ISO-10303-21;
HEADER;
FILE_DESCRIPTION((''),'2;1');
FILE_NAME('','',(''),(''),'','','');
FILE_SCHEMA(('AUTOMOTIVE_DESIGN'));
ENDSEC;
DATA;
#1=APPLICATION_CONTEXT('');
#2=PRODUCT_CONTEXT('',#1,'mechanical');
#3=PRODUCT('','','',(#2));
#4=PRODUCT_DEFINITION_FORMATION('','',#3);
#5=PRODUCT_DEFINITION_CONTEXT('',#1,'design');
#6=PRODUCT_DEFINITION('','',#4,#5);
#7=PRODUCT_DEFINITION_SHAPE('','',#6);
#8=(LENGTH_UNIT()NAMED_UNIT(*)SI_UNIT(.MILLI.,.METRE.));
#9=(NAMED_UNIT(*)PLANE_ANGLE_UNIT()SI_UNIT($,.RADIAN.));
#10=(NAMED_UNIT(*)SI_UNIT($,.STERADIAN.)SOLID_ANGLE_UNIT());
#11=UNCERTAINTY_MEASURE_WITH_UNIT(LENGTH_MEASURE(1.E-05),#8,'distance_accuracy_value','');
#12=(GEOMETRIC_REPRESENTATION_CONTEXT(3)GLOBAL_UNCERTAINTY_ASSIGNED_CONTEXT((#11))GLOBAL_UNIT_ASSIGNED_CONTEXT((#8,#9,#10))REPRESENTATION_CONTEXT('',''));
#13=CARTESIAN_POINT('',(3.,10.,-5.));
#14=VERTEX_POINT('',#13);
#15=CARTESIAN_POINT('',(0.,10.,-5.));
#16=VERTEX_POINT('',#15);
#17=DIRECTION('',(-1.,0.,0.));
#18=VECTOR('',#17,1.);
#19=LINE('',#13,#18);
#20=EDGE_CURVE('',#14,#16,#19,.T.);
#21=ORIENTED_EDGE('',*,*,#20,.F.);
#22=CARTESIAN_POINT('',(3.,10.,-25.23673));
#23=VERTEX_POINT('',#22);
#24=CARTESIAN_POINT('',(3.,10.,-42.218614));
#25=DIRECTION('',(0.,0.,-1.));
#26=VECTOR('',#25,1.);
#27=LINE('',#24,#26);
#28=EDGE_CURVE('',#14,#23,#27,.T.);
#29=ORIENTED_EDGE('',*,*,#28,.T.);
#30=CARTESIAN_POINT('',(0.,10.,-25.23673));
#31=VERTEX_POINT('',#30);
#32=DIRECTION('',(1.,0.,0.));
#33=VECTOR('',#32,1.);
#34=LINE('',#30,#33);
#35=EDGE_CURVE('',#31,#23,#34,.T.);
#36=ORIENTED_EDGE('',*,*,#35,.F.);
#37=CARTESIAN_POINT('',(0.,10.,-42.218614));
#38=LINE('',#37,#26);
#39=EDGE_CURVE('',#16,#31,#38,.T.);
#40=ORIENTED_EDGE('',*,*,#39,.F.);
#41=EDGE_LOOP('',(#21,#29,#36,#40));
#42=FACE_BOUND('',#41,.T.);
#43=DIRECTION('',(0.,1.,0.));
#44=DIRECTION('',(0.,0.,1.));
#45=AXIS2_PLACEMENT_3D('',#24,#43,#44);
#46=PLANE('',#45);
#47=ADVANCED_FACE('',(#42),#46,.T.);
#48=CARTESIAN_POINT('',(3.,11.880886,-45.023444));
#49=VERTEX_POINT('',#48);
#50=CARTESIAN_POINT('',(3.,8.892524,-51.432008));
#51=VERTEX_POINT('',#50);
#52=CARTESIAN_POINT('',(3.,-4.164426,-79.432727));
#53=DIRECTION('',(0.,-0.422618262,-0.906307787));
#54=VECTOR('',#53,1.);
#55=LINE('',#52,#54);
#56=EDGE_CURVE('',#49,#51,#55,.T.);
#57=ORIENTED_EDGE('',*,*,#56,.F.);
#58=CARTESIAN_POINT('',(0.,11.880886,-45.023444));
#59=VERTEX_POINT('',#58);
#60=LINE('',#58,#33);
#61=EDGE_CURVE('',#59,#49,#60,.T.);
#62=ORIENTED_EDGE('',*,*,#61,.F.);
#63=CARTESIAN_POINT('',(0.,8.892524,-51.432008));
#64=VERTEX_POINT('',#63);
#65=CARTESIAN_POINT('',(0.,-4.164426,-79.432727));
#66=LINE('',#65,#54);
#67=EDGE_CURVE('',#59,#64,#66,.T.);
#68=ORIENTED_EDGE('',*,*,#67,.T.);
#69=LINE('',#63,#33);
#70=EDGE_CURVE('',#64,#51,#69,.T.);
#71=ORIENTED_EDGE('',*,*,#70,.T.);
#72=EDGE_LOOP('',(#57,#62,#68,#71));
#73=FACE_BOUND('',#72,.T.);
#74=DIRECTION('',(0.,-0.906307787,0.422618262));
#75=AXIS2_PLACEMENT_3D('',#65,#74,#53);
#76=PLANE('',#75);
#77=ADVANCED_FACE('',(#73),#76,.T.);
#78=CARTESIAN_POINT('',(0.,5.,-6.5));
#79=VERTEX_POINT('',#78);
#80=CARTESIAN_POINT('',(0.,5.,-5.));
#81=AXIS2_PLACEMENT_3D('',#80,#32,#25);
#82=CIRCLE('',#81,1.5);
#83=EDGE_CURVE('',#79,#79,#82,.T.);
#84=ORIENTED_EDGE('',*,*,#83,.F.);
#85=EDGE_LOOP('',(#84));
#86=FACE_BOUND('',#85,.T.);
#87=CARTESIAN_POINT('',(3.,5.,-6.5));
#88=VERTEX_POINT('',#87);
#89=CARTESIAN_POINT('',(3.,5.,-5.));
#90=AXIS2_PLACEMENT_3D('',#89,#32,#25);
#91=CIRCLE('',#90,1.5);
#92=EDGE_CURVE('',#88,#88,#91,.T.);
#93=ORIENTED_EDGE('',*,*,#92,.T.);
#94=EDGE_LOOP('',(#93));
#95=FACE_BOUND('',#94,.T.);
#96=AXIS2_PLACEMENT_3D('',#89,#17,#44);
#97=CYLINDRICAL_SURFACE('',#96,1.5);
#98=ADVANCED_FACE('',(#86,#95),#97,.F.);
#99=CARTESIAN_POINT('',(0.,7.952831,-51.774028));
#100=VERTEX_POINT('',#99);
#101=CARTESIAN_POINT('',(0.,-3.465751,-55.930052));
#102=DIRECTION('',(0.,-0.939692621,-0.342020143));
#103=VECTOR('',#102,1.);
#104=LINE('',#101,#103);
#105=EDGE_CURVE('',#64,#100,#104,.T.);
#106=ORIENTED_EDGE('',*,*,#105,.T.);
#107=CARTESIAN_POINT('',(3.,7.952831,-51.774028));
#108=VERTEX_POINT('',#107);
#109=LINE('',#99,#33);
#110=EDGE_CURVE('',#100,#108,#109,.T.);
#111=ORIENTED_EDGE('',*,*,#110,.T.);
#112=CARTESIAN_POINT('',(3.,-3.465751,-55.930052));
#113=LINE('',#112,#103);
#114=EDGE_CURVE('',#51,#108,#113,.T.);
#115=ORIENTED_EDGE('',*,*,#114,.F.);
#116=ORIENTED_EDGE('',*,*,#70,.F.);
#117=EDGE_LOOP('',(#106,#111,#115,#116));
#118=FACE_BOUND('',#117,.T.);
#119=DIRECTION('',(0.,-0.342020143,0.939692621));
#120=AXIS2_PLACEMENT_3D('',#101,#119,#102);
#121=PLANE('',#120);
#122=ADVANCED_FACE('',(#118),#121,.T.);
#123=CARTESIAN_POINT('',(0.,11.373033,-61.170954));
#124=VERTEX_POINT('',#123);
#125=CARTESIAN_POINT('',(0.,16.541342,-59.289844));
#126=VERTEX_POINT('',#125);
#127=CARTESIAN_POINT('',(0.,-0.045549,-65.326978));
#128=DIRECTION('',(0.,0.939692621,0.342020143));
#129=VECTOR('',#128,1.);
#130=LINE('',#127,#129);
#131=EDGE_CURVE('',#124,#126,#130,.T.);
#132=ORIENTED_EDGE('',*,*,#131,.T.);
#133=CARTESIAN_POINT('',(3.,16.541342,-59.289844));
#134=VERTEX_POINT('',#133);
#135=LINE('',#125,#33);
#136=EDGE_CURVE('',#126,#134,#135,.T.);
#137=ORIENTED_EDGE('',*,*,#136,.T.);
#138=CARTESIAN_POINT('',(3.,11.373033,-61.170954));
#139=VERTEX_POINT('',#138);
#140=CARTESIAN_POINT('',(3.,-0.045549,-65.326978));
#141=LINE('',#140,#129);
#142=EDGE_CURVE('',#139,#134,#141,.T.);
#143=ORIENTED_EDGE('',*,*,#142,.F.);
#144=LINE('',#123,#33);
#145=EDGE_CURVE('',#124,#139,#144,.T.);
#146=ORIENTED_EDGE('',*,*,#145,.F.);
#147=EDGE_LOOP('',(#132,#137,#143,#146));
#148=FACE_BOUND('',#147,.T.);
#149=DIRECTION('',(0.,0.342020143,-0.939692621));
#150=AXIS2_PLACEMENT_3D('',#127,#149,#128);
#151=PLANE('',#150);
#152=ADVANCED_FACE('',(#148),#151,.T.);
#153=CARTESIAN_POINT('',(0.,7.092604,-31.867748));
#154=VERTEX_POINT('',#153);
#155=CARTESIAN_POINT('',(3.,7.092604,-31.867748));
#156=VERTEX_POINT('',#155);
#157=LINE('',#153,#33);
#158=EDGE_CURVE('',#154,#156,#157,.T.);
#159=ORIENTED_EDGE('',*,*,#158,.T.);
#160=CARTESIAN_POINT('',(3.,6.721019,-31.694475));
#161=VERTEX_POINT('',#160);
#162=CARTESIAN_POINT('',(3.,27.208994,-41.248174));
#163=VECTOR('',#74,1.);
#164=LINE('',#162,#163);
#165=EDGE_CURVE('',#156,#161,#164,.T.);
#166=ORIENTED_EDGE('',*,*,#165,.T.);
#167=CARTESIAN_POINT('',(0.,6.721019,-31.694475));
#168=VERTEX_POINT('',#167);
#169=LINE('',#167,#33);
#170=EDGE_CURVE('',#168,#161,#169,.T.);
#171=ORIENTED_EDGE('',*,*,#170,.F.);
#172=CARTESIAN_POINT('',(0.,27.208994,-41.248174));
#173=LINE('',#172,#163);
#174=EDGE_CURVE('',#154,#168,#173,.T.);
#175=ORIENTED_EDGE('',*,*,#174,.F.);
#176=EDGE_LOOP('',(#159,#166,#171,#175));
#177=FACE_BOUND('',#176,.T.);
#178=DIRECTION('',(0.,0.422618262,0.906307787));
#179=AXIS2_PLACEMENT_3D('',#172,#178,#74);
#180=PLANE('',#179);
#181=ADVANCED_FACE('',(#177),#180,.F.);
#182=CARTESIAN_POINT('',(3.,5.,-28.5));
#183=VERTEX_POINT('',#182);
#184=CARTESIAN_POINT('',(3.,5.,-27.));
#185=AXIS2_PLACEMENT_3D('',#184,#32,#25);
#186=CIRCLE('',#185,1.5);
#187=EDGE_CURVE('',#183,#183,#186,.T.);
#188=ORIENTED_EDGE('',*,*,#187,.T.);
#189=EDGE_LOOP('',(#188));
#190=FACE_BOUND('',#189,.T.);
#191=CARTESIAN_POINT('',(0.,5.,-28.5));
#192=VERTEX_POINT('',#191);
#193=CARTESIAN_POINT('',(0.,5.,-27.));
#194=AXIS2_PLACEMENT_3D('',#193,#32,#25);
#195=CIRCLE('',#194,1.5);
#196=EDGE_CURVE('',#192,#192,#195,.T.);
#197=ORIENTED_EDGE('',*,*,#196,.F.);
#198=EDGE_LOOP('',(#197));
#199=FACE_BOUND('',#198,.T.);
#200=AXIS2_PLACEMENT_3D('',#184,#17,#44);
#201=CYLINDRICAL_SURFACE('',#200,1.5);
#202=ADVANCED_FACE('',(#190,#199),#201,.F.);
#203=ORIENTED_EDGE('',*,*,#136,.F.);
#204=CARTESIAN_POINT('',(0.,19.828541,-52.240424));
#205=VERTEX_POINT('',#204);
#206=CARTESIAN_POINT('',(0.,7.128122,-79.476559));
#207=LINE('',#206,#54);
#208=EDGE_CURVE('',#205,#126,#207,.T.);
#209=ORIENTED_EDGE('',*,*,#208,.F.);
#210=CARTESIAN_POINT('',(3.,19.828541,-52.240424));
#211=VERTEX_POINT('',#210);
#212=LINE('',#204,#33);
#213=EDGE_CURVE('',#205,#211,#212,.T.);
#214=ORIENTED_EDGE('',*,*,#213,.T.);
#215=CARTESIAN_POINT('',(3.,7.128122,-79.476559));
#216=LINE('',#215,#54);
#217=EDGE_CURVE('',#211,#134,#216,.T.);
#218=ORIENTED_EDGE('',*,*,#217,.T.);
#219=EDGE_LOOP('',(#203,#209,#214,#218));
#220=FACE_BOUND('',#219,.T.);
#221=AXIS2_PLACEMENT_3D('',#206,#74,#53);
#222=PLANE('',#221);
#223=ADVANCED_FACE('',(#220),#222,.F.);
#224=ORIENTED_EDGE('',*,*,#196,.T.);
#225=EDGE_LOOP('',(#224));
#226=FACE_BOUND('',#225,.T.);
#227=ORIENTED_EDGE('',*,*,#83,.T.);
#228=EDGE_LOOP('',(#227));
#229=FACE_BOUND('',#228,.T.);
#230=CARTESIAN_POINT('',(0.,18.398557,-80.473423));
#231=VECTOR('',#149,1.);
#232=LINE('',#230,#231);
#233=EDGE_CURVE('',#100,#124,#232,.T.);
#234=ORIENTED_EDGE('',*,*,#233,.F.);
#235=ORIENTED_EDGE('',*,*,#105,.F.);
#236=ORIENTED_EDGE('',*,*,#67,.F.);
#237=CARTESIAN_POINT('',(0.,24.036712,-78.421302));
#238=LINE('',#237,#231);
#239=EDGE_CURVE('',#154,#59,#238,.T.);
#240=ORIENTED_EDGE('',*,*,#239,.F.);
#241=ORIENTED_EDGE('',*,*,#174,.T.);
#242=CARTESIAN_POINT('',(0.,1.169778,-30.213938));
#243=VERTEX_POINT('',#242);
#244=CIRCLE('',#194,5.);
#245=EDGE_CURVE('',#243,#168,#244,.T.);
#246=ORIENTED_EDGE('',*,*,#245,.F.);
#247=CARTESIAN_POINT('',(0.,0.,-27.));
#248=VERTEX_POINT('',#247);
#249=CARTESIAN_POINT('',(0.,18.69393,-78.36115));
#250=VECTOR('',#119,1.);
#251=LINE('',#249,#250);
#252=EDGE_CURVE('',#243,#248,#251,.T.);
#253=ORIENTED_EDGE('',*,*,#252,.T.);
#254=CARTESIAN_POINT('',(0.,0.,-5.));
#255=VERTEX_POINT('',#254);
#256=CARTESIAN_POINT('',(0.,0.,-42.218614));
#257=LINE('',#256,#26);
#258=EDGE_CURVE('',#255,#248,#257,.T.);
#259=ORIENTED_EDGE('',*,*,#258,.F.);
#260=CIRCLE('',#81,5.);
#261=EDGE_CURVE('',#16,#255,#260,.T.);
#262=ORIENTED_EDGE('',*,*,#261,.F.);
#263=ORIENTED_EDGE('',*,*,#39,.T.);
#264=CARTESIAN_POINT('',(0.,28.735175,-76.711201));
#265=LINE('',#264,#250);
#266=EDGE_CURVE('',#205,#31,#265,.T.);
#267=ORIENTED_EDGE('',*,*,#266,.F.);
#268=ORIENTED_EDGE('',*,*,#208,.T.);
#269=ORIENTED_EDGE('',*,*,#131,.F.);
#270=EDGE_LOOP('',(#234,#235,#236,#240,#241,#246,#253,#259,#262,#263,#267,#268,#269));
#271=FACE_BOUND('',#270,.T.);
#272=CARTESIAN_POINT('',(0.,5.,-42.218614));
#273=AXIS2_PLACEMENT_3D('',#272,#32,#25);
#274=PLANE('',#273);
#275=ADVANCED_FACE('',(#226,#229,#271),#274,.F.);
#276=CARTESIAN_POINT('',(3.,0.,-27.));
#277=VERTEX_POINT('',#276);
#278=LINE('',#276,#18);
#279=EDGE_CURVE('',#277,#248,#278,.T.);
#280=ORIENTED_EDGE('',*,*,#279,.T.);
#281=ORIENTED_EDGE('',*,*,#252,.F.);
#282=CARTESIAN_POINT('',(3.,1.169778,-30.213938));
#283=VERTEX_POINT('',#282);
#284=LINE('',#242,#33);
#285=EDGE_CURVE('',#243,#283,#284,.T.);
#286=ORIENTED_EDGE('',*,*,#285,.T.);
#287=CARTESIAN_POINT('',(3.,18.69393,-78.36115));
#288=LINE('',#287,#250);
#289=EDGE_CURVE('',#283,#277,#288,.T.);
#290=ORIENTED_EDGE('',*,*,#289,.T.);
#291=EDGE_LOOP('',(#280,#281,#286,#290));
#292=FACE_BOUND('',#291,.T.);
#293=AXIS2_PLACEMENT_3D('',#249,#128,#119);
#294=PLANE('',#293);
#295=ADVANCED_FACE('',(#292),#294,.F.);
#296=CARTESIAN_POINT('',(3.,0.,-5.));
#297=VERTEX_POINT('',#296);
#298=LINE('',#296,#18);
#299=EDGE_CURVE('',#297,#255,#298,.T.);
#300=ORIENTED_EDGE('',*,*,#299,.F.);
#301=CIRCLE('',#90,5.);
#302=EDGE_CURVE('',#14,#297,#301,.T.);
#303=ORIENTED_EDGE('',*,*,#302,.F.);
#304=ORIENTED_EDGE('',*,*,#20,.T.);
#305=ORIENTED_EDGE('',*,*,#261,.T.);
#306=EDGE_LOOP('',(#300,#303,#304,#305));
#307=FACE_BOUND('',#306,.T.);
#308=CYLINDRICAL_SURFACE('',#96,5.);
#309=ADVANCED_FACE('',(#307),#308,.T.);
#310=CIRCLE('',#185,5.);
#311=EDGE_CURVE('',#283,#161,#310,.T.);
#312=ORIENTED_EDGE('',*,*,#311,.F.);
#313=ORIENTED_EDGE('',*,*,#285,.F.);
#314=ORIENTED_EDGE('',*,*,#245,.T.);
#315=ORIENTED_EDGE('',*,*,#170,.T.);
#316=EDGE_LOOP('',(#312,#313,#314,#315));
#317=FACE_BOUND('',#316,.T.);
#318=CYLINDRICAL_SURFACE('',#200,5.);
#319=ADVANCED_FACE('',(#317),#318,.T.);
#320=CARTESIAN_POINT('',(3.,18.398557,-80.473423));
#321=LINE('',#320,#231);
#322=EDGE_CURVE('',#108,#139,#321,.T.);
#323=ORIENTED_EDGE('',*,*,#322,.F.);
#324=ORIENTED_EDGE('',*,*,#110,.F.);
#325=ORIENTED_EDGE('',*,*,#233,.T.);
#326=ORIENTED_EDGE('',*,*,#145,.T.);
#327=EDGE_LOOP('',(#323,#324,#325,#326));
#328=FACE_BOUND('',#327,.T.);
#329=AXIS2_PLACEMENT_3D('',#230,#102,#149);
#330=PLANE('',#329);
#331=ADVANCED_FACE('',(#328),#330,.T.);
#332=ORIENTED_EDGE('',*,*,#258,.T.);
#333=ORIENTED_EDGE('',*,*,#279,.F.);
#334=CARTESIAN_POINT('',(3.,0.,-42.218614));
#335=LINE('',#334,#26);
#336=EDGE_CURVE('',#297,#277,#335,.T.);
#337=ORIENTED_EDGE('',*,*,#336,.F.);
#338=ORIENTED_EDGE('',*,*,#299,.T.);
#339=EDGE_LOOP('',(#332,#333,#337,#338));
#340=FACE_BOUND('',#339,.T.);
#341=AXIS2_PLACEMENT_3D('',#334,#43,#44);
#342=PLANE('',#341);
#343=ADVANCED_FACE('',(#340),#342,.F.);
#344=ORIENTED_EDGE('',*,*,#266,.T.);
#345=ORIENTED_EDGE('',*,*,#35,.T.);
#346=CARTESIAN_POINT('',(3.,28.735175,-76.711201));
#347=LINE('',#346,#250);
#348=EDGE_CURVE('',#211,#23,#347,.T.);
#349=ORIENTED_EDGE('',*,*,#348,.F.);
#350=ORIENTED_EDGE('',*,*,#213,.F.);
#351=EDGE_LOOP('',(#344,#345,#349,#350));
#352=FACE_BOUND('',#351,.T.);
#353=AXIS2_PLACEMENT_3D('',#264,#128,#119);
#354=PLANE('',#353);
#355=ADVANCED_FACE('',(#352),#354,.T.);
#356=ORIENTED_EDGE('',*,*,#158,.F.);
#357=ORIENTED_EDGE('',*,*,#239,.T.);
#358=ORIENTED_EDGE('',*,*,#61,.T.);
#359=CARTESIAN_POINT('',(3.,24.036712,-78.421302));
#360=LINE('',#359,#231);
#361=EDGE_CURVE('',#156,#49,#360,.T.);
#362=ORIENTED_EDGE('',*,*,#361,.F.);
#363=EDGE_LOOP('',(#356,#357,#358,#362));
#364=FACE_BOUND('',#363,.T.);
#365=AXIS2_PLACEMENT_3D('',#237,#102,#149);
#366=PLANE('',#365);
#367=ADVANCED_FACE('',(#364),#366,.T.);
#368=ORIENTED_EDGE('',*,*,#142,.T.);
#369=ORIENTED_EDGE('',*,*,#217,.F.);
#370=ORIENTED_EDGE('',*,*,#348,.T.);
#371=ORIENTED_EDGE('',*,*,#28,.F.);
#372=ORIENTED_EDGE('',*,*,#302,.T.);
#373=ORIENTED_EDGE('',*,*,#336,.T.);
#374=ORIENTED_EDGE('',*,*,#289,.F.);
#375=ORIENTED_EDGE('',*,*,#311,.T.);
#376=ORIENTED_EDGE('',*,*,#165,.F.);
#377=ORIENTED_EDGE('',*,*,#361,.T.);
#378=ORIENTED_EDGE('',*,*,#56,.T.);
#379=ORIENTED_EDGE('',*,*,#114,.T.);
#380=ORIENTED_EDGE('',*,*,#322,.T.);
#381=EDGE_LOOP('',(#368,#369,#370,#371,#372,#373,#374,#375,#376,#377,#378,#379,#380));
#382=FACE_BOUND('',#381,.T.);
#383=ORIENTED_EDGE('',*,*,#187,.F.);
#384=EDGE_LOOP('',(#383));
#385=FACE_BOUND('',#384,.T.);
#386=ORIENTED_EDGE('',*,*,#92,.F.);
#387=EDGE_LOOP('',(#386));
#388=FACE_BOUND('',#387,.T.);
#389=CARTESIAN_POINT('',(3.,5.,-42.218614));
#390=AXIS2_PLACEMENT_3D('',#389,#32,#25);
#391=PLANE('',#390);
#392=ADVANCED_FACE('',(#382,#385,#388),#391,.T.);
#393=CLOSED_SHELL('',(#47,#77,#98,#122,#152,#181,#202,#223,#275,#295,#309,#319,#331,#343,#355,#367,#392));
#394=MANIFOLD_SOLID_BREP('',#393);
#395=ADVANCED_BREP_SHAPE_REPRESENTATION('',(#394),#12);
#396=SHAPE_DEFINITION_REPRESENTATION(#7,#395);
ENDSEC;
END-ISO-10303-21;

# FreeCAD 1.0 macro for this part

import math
import FreeCAD as App
import Part
import Sketcher
from FreeCAD import Vector
Q = App.Units.Quantity


def add_polygon(sketch, points):
    """Adds a closed chain of lines whose ends are joined by coincident constraints."""
    first, n = sketch.GeometryCount, len(points)
    for a, b in zip(points, points[1:] + points[:1]):
        sketch.addGeometry(Part.LineSegment(App.Vector(*a, 0), App.Vector(*b, 0)), False)
    for i in range(n):
        sketch.addConstraint(Sketcher.Constraint("Coincident", first + i, 2, first + (i + 1) % n, 1))

doc = App.newDocument("Part")
body = doc.addObject("PartDesign::Body", "Body")

sketch1 = doc.addObject("Sketcher::SketchObject", "Sketch")
body.addObject(sketch1)
sketch1.AttachmentSupport = (doc.YZ_Plane, [""])
sketch1.MapMode = "FlatFace"
sketch1.addGeometry([
    Part.ArcOfCircle(Part.Circle(Vector(5, -5, 0), Vector(0, 0, 1), 5), math.radians(0), math.radians(180)),
    Part.LineSegment(Vector(0, -5, 0), Vector(0, -27, 0)),
    Part.ArcOfCircle(Part.Circle(Vector(5, -27, 0), Vector(0, 0, 1), 5), math.radians(180), math.radians(360)),
    Part.LineSegment(Vector(10, -27, 0), Vector(10, -5, 0)),
    Part.Circle(Vector(5, -5, 0), Vector(0, 0, 1), 1.5),
    Part.Circle(Vector(5, -27, 0), Vector(0, 0, 1), 1.5),
], False)
sketch1.addConstraint([
    Sketcher.Constraint("Tangent", 0, 2, 1, 1),
    Sketcher.Constraint("Tangent", 1, 2, 2, 1),
    Sketcher.Constraint("Tangent", 2, 2, 3, 1),
    Sketcher.Constraint("Tangent", 3, 2, 0, 1),
    Sketcher.Constraint("Vertical", 1),
    Sketcher.Constraint("Vertical", 3),
    Sketcher.Constraint("Coincident", 4, 3, 0, 3),
    Sketcher.Constraint("Coincident", 5, 3, 2, 3),
    Sketcher.Constraint("Equal", 4, 5),
    Sketcher.Constraint("PointOnObject", 0, 2, -2),
    Sketcher.Constraint("Diameter", 4, Q("3 mm")),
    Sketcher.Constraint("Radius", 0, Q("5 mm")),
    Sketcher.Constraint("DistanceY", 1, 2, 1, 1, Q("22 mm")),
    Sketcher.Constraint("DistanceY", 0, 3, -1, 1, Q("5 mm")),
])
pad1 = doc.addObject("PartDesign::Pad", "Pad")
body.addObject(pad1)
pad1.Profile = sketch1
pad1.Length = 3

sketch2 = doc.addObject("Sketcher::SketchObject", "Sketch001")
body.addObject(sketch2)
sketch2.AttachmentSupport = (doc.YZ_Plane, [""])
sketch2.MapMode = "FlatFace"
sketch2.AttachmentOffset = App.Placement(Vector(0, 0, 3), App.Rotation())
sketch2.addGeometry([
    Part.ArcOfCircle(Part.Circle(Vector(5, -27, 0), Vector(0, 0, 1), 5), math.radians(-69.866798), math.radians(0)),
    Part.LineSegment(Vector(6.721019, -31.694475, 0), Vector(7.092604, -31.867748, 0)),
    Part.LineSegment(Vector(7.092604, -31.867748, 0), Vector(11.880886, -45.023444, 0)),
    Part.LineSegment(Vector(11.880886, -45.023444, 0), Vector(8.892524, -51.432008, 0)),
    Part.LineSegment(Vector(8.892524, -51.432008, 0), Vector(7.952831, -51.774028, 0)),
    Part.LineSegment(Vector(7.952831, -51.774028, 0), Vector(11.373033, -61.170954, 0)),
    Part.LineSegment(Vector(11.373033, -61.170954, 0), Vector(12.312725, -60.828934, 0)),
    Part.LineSegment(Vector(12.312725, -60.828934, 0), Vector(21.709651, -57.408733, 0)),
    Part.LineSegment(Vector(21.709651, -57.408733, 0), Vector(10, -25.23673, 0)),
    Part.LineSegment(Vector(10, -25.23673, 0), Vector(10, -27, 0)),
], False)
sketch2.addConstraint([
    Sketcher.Constraint("Coincident", 0, 1, 1, 1),
    Sketcher.Constraint("Coincident", 1, 2, 2, 1),
    Sketcher.Constraint("Coincident", 2, 2, 3, 1),
    Sketcher.Constraint("Coincident", 3, 2, 4, 1),
    Sketcher.Constraint("Coincident", 4, 2, 5, 1),
    Sketcher.Constraint("Coincident", 5, 2, 6, 1),
    Sketcher.Constraint("Coincident", 6, 2, 7, 1),
    Sketcher.Constraint("Coincident", 7, 2, 8, 1),
    Sketcher.Constraint("Coincident", 8, 2, 9, 1),
    Sketcher.Constraint("Tangent", 9, 2, 0, 2),
    Sketcher.Constraint("Vertical", 9),
    Sketcher.Constraint("Perpendicular", 1, 3),
    Sketcher.Constraint("Perpendicular", 2, 4),
    Sketcher.Constraint("Perpendicular", 4, 5),
    Sketcher.Constraint("Perpendicular", 5, 6),
    Sketcher.Constraint("Parallel", 6, 7),
    Sketcher.Constraint("Perpendicular", 7, 8),
    Sketcher.Constraint("Equal", 4, 6),
    Sketcher.Constraint("Equal", 5, 7),
    Sketcher.Constraint("Radius", 0, Q("5 mm")),
    Sketcher.Constraint("Angle", 1, Q("-25 deg")),
    Sketcher.Constraint("Angle", 2, Q("-70 deg")),
    Sketcher.Constraint("Distance", 2, Q("14 mm")),
    Sketcher.Constraint("Distance", 4, Q("1 mm")),
    Sketcher.Constraint("Distance", 5, Q("10 mm")),
    Sketcher.Constraint("DistanceX", -1, 1, 0, 3, Q("5 mm")),
    Sketcher.Constraint("DistanceY", 0, 3, -1, 1, Q("27 mm")),
    Sketcher.Constraint("Distance", 1, Q("0.409999 mm")),
    Sketcher.Constraint("DistanceY", 9, 2, 9, 1, Q("1.76327 mm")),
    Sketcher.Constraint("Distance", 8, Q("34.23673 mm")),
])
pad2 = doc.addObject("PartDesign::Pad", "Pad001")
body.addObject(pad2)
pad2.Profile = sketch2
pad2.Length = 3
pad2.Reversed = True

sketch3 = doc.addObject("Sketcher::SketchObject", "Sketch002")
body.addObject(sketch3)
sketch3.AttachmentSupport = (doc.YZ_Plane, [""])
sketch3.MapMode = "FlatFace"
sketch3.AttachmentOffset = App.Placement(Vector(0, 0, 3), App.Rotation())
sketch3.addGeometry([
    Part.ArcOfCircle(Part.Circle(Vector(5, -27, 0), Vector(0, 0, 1), 5), math.radians(180), math.radians(220)),
    Part.LineSegment(Vector(1.169778, -30.213938, 0), Vector(0, -27, 0)),
], False)
sketch3.addConstraint([
    Sketcher.Constraint("Coincident", 0, 1, 1, 2),
    Sketcher.Constraint("Coincident", 1, 1, 0, 2),
    Sketcher.Constraint("PointOnObject", 0, 1, -2),
    Sketcher.Constraint("Radius", 0, Q("5 mm")),
    Sketcher.Constraint("Angle", 1, Q("110 deg")),
    Sketcher.Constraint("DistanceY", 0, 3, -1, 1, Q("27 mm")),
    Sketcher.Constraint("DistanceY", 0, 1, -1, 1, Q("27 mm")),
])
pocket1 = doc.addObject("PartDesign::Pocket", "Pocket")
body.addObject(pocket1)
pocket1.Profile = sketch3
pocket1.Length = 3

sketch4 = doc.addObject("Sketcher::SketchObject", "Sketch003")
body.addObject(sketch4)
sketch4.AttachmentSupport = (doc.YZ_Plane, [""])
sketch4.MapMode = "FlatFace"
sketch4.AttachmentOffset = App.Placement(Vector(0, 0, 3), App.Rotation())
add_polygon(sketch4, [(21.709651, -57.408733), (19.828541, -52.240424), (16.541342, -59.289844)])
sketch4.addConstraint([
    Sketcher.Constraint("Perpendicular", 0, 2),
    Sketcher.Constraint("Equal", 0, 2),
    Sketcher.Constraint("Angle", 0, Q("110 deg")),
    Sketcher.Constraint("Distance", 0, Q("5.5 mm")),
    Sketcher.Constraint("DistanceX", -1, 1, 0, 2, Q("19.828541 mm")),
    Sketcher.Constraint("DistanceY", 0, 2, -1, 1, Q("52.240424 mm")),
])
pocket2 = doc.addObject("PartDesign::Pocket", "Pocket001")
body.addObject(pocket2)
pocket2.Profile = sketch4
pocket2.Type = "ThroughAll"

doc.recompute()
